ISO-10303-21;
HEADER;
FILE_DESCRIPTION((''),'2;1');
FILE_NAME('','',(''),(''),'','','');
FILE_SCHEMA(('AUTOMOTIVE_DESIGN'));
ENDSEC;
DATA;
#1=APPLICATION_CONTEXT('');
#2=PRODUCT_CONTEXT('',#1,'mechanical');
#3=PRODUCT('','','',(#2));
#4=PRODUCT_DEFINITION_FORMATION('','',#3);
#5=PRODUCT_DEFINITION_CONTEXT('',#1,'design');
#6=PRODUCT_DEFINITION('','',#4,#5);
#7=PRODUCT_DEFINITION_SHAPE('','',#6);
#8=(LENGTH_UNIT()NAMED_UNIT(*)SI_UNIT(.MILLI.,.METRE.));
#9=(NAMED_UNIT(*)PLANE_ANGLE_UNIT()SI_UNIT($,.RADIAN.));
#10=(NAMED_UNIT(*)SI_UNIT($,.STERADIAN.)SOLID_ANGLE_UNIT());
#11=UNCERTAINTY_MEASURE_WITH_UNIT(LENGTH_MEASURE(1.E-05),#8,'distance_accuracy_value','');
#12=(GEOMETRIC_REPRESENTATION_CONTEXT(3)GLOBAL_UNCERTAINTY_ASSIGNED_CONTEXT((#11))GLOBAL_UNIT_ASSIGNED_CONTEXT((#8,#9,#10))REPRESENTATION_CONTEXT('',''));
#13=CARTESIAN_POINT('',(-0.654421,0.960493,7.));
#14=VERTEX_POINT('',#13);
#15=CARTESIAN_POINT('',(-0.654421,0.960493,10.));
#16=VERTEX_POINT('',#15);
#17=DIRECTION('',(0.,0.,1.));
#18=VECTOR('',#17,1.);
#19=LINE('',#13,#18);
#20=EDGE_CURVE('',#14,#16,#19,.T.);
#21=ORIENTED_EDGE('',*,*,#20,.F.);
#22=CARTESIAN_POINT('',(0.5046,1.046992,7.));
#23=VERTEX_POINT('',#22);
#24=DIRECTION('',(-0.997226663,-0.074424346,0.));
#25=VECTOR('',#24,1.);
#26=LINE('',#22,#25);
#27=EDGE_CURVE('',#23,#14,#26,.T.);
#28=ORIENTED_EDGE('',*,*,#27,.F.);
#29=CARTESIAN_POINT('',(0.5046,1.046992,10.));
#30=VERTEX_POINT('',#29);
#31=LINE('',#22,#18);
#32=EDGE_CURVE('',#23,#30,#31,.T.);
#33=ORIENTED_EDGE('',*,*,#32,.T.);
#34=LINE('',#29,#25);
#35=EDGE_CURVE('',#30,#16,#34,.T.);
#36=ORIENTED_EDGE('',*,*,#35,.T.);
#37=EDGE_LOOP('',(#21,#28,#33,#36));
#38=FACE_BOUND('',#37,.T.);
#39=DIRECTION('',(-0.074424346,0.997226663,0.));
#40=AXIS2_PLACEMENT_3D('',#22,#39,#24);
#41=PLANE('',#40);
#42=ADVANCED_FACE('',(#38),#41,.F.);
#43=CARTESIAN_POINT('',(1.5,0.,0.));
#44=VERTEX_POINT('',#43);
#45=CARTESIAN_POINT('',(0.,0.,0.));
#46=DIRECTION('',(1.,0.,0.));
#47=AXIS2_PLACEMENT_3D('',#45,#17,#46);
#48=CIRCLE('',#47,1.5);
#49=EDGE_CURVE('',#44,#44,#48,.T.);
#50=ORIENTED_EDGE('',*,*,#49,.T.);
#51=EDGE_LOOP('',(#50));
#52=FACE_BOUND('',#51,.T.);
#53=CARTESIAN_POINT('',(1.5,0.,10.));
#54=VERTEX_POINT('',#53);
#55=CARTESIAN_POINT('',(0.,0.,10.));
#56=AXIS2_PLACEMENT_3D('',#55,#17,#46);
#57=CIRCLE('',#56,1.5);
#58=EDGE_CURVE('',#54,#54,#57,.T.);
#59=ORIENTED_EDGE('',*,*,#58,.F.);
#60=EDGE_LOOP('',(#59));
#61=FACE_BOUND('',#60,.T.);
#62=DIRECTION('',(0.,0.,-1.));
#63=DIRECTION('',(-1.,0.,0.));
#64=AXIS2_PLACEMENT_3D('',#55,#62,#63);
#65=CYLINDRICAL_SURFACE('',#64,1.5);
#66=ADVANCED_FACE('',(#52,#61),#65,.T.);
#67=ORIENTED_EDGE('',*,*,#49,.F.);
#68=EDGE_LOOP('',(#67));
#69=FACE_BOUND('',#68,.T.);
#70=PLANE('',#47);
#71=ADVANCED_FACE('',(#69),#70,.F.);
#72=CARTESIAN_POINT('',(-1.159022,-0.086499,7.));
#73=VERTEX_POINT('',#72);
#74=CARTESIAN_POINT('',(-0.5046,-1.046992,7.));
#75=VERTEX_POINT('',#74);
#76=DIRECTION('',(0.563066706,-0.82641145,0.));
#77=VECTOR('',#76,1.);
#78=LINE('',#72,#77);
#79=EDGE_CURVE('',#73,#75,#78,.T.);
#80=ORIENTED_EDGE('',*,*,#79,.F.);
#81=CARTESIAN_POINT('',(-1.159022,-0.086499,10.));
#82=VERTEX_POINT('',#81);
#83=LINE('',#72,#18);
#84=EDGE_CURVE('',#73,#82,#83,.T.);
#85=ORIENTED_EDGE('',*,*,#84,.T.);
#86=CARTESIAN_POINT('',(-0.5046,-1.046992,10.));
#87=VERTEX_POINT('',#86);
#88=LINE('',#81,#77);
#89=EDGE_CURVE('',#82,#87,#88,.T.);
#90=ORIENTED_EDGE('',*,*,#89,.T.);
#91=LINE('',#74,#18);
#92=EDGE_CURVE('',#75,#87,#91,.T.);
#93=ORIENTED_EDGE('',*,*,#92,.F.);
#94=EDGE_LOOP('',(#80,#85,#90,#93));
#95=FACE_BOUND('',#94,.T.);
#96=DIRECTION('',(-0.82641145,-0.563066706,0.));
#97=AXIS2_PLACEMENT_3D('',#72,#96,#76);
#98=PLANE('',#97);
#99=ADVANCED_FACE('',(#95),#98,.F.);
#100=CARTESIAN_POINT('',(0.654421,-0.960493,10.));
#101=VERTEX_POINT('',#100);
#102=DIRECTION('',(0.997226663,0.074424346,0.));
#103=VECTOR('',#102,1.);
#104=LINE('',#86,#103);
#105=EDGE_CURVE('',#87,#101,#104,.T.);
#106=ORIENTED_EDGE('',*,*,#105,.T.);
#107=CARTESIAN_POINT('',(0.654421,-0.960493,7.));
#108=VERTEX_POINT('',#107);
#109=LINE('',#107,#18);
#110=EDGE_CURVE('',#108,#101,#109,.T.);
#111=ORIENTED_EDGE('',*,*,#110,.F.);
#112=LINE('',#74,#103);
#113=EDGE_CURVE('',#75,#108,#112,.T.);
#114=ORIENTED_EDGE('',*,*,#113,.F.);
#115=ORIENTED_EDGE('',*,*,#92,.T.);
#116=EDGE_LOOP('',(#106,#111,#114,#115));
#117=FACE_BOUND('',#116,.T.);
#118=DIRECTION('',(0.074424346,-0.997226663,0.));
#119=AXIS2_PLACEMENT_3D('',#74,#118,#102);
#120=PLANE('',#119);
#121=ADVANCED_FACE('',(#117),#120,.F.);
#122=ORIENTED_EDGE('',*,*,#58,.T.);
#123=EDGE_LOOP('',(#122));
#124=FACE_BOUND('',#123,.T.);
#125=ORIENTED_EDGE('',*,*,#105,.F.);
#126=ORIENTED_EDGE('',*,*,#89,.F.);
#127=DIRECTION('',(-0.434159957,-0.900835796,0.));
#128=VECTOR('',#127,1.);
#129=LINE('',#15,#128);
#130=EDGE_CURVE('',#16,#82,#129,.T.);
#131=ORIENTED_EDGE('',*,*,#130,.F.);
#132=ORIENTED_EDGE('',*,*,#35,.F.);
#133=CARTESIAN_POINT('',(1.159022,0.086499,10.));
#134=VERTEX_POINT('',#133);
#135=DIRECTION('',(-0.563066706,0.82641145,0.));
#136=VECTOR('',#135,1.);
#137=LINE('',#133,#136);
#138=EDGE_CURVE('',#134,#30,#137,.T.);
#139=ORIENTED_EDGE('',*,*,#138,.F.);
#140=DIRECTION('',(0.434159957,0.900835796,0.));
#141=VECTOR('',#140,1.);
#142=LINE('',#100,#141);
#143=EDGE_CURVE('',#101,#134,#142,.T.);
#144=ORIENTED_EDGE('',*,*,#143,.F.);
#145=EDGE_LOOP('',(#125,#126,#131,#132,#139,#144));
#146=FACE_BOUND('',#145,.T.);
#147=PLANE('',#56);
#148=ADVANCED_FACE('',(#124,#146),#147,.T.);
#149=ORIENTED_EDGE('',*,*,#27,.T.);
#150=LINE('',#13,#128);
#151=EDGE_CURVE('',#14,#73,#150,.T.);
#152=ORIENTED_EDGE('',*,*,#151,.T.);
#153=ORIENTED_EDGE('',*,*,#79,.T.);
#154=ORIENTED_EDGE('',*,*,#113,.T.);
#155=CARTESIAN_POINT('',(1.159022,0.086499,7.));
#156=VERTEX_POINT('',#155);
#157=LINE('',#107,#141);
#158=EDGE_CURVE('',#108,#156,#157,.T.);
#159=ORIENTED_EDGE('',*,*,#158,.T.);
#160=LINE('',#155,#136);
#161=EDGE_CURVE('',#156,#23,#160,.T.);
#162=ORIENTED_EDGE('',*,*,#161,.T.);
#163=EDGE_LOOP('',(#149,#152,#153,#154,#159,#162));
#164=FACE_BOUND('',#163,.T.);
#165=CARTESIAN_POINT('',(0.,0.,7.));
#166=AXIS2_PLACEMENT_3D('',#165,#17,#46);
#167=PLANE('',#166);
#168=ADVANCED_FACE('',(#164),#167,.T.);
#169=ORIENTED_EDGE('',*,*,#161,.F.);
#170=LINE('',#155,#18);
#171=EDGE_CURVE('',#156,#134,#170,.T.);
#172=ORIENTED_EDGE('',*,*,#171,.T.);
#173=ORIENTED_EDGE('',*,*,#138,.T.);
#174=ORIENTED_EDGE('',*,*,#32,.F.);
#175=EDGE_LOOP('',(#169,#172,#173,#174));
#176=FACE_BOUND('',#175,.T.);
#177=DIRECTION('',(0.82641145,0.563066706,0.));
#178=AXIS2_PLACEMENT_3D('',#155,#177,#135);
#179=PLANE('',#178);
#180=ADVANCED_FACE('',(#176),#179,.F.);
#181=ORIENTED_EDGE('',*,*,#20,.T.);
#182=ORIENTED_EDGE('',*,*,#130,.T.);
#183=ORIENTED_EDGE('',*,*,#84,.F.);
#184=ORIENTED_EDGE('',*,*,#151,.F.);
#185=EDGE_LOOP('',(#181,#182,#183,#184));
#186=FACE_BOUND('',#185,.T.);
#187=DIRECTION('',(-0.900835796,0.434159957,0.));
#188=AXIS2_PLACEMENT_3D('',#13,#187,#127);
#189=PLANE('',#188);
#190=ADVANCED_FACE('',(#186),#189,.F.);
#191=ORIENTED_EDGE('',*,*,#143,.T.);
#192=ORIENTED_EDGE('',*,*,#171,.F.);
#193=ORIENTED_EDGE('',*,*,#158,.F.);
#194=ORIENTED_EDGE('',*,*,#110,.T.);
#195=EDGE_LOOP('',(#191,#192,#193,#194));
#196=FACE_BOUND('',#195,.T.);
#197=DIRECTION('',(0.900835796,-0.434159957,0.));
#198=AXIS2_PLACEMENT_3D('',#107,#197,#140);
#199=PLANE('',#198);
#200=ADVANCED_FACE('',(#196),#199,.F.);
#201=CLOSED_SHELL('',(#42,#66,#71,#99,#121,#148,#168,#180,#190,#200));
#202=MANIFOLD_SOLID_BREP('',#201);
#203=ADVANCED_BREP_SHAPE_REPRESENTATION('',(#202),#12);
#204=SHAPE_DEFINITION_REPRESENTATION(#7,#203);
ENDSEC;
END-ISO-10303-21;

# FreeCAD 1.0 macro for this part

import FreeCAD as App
import Part
import Sketcher
from FreeCAD import Vector


def add_polygon(sketch, points):
    """Adds a closed chain of lines whose ends are joined by coincident constraints."""
    first, n = sketch.GeometryCount, len(points)
    for a, b in zip(points, points[1:] + points[:1]):
        sketch.addGeometry(Part.LineSegment(App.Vector(*a, 0), App.Vector(*b, 0)), False)
    for i in range(n):
        sketch.addConstraint(Sketcher.Constraint("Coincident", first + i, 2, first + (i + 1) % n, 1))

doc = App.newDocument("Part")
body = doc.addObject("PartDesign::Body", "Body")

sketch1 = doc.addObject("Sketcher::SketchObject", "Sketch")
body.addObject(sketch1)
sketch1.AttachmentSupport = (doc.XY_Plane, [""])
sketch1.MapMode = "FlatFace"
sketch1.addGeometry(Part.Circle(Vector(0, 0, 0), Vector(0, 0, 1), 1.5), False)
sketch1.addConstraint(Sketcher.Constraint("Coincident", 0, 3, -1, 1))
sketch1.addConstraint(Sketcher.Constraint("Diameter", 0, 3.0))
pad1 = doc.addObject("PartDesign::Pad", "Pad")
body.addObject(pad1)
pad1.Profile = sketch1
pad1.Length = 10

sketch2 = doc.addObject("Sketcher::SketchObject", "Sketch001")
body.addObject(sketch2)
sketch2.AttachmentSupport = (doc.XY_Plane, [""])
sketch2.MapMode = "FlatFace"
sketch2.AttachmentOffset = App.Placement(Vector(0, 0, 10), App.Rotation())
add_polygon(sketch2, [(0.7, -1), (1.2, 0.1), (0.5, 1), (-0.7, 1), (-1.2, -0.1), (-0.5, -1)])
sketch2.addConstraint(Sketcher.Constraint("Symmetric", 0, 2, 3, 2, -1, 1))
sketch2.addConstraint(Sketcher.Constraint("Symmetric", 1, 2, 4, 2, -1, 1))
sketch2.addConstraint(Sketcher.Constraint("Symmetric", 2, 2, 5, 2, -1, 1))
sketch2.addConstraint(Sketcher.Constraint("Equal", 0, 1))
sketch2.addConstraint(Sketcher.Constraint("Equal", 1, 2))
sketch2.addConstraint(Sketcher.Constraint("DistanceY", 3, 2, 0, 2, 0.172999))
sketch2.addConstraint(Sketcher.Constraint("DistanceX", -1, 1, 1, 2, 0.5046))
sketch2.addConstraint(Sketcher.Constraint("DistanceY", 2, 2, 1, 2, 0.086499))
sketch2.addConstraint(Sketcher.Constraint("DistanceX", 3, 2, 2, 2, 0.5046))
pocket1 = doc.addObject("PartDesign::Pocket", "Pocket")
body.addObject(pocket1)
pocket1.Profile = sketch2
pocket1.Length = 3

doc.recompute()
